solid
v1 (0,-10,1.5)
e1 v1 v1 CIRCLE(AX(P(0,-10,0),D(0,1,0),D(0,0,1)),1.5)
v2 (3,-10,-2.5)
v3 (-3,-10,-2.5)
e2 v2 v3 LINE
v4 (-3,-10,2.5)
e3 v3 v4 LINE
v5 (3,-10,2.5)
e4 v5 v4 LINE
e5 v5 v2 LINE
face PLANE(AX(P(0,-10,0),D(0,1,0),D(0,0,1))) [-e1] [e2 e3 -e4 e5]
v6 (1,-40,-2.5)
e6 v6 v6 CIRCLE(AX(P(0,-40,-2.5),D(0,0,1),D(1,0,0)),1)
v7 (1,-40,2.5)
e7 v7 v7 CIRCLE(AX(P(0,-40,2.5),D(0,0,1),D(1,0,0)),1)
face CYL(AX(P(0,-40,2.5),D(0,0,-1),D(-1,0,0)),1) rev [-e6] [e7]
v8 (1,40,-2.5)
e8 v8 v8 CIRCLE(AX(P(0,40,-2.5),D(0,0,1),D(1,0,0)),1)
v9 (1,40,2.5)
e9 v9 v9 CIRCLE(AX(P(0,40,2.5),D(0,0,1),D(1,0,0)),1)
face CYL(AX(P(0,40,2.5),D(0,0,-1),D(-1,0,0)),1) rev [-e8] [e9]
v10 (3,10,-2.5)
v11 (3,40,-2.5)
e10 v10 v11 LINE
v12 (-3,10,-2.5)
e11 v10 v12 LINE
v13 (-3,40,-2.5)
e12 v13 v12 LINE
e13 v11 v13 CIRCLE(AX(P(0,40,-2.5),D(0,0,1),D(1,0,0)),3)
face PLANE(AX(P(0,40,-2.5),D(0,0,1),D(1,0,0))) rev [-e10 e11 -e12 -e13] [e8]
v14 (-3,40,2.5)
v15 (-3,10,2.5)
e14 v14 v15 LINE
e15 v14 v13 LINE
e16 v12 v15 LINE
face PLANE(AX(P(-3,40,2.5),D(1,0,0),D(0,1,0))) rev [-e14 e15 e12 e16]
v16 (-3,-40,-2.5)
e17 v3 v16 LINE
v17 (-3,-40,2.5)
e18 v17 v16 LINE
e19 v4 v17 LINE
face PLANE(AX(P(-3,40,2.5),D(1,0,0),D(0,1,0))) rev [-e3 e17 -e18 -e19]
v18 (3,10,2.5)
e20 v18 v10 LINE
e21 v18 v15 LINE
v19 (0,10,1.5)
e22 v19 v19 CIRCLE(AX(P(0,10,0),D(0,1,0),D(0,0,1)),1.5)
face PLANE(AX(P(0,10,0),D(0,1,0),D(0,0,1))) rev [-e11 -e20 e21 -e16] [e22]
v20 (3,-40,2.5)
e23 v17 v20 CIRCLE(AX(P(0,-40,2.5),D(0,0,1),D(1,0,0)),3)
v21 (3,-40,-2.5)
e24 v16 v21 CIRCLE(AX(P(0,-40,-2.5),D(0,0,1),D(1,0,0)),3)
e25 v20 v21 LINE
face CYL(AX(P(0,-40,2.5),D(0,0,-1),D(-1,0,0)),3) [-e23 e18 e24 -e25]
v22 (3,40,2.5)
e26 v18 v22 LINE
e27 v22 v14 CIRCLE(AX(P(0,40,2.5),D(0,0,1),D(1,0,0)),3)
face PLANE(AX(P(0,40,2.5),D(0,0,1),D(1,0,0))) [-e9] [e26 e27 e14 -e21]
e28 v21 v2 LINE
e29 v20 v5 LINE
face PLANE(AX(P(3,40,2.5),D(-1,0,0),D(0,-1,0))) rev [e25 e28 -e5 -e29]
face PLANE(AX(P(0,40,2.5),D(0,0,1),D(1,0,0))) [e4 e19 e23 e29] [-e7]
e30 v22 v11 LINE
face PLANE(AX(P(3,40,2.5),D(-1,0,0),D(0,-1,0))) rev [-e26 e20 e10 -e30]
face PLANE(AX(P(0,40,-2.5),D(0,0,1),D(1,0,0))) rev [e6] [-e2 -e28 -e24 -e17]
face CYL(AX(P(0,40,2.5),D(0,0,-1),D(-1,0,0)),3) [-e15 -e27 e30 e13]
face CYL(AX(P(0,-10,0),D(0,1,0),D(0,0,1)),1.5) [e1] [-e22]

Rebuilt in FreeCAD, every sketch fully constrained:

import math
import FreeCAD as App
import Part
import Sketcher
Q = App.Units.Quantity

doc = App.newDocument("Part")
body = doc.addObject("PartDesign::Body", "Body")

# Sketch on XY plane
sketch1 = doc.addObject("Sketcher::SketchObject", "Sketch")
body.addObject(sketch1)
sketch1.AttachmentSupport = (doc.XY_Plane, [""])
sketch1.MapMode = "FlatFace"
sketch1.addGeometry([
    Part.LineSegment(App.Vector(3, -80, 0), App.Vector(3, 0, 0)),  # 0
    Part.ArcOfCircle(Part.Circle(App.Vector(0, 0, 0), App.Vector(0, 0, 1), 3), math.radians(0), math.radians(180)),  # 1
    Part.LineSegment(App.Vector(-3, 0, 0), App.Vector(-3, -80, 0)),  # 2
    Part.ArcOfCircle(Part.Circle(App.Vector(0, -80, 0), App.Vector(0, 0, 1), 3), math.radians(180), math.radians(360)),  # 3
    Part.Circle(App.Vector(0, -80, 0), App.Vector(0, 0, 1), 1),  # 4
    Part.Circle(App.Vector(0, 0, 0), App.Vector(0, 0, 1), 1),  # 5
], False)
sketch1.addConstraint([
    Sketcher.Constraint("Tangent", 0, 2, 1, 1),
    Sketcher.Constraint("Tangent", 1, 2, 2, 1),
    Sketcher.Constraint("Tangent", 2, 2, 3, 1),
    Sketcher.Constraint("Tangent", 3, 2, 0, 1),
    Sketcher.Constraint("Vertical", 0),
    Sketcher.Constraint("Vertical", 2),
    Sketcher.Constraint("Coincident", 1, 3, -1, 1),
    Sketcher.Constraint("Coincident", 5, 3, -1, 1),
    Sketcher.Constraint("Coincident", 4, 3, 3, 3),
    Sketcher.Constraint("Equal", 4, 5),
    Sketcher.Constraint("Diameter", 4, Q("2 mm")),
    Sketcher.Constraint("Radius", 1, Q("3 mm")),
    Sketcher.Constraint("DistanceY", 0, 1, 0, 2, Q("80 mm")),
])
pad1 = doc.addObject("PartDesign::Pad", "Pad")
body.addObject(pad1)
pad1.Profile = sketch1
pad1.Length = 5
pad1.Midplane = True
body2 = doc.addObject("PartDesign::Body", "Body001")
doc.recompute()

body.Placement = App.Placement(App.Vector(0, 40, 0), App.Rotation(App.Vector(0, 0, 1), 0))
boolean = doc.addObject("PartDesign::Boolean", "Boolean")
body2.addObject(boolean)
boolean.Type = "Fuse"
boolean.addObjects([body])

# Sketch on XZ plane
sketch2 = doc.addObject("Sketcher::SketchObject", "Sketch001")
body2.addObject(sketch2)
sketch2.AttachmentSupport = (doc.getObject("XZ_Plane001"), [""])
sketch2.MapMode = "FlatFace"
sketch2.addGeometry([
    Part.Circle(App.Vector(0, 0, 0), App.Vector(0, 0, 1), 5.3),
    Part.Circle(App.Vector(0, 0, 0), App.Vector(0, 0, 1), 1.5),
], False)
sketch2.addConstraint([
    Sketcher.Constraint("Coincident", 0, 3, -1, 1),
    Sketcher.Constraint("Coincident", 1, 3, -1, 1),
    Sketcher.Constraint("Diameter", 1, Q("3 mm")),
    Sketcher.Constraint("Diameter", 0, Q("10.683631 mm")),
])
pocket1 = doc.addObject("PartDesign::Pocket", "Pocket")
body2.addObject(pocket1)
pocket1.Profile = sketch2
pocket1.Length = 20
pocket1.Midplane = True

doc.recompute()
